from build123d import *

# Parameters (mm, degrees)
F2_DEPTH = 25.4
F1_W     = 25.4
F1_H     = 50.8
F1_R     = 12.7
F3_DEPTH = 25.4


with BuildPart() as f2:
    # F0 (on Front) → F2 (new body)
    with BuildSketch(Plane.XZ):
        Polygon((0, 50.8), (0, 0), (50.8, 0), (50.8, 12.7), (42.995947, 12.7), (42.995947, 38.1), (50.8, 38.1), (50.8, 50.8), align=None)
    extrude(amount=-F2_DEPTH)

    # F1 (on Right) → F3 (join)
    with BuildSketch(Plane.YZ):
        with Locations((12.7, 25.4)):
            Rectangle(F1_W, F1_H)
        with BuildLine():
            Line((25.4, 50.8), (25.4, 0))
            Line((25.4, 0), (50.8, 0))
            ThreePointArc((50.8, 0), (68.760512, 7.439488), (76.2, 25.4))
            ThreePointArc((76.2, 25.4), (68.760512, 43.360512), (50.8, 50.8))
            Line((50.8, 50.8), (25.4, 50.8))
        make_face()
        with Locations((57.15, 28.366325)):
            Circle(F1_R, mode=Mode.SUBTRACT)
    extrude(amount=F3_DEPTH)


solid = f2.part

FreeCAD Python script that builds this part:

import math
import FreeCAD as App
import Part
import Sketcher
from FreeCAD import Vector
Q = App.Units.Quantity


def add_polygon(sketch, points):
    """Adds a closed chain of lines whose ends are joined by coincident constraints."""
    first, n = sketch.GeometryCount, len(points)
    for a, b in zip(points, points[1:] + points[:1]):
        sketch.addGeometry(Part.LineSegment(App.Vector(*a, 0), App.Vector(*b, 0)), False)
    for i in range(n):
        sketch.addConstraint(Sketcher.Constraint("Coincident", first + i, 2, first + (i + 1) % n, 1))

doc = App.newDocument("Part")
body = doc.addObject("PartDesign::Body", "Body")

# Sketch on XZ plane
sketch1 = body.newObject("Sketcher::SketchObject", "Sketch")
sketch1.AttachmentSupport = (doc.getObject("XZ_Plane"), [""])
sketch1.MapMode = "FlatFace"
add_polygon(sketch1, [(0, 50.8), (0, 0), (50.8, 0), (50.8, 12.7), (42.995947, 12.7), (42.995947, 38.1), (50.8, 38.1), (50.8, 50.8)])  # lines 0-7
sketch1.addConstraint([
    Sketcher.Constraint("Vertical", 0),
    Sketcher.Constraint("Horizontal", 1),
    Sketcher.Constraint("Vertical", 2),
    Sketcher.Constraint("Horizontal", 3),
    Sketcher.Constraint("Vertical", 4),
    Sketcher.Constraint("Horizontal", 5),
    Sketcher.Constraint("Vertical", 6),
    Sketcher.Constraint("Horizontal", 7),
    Sketcher.Constraint("Coincident", 0, 2, -1, 1),
    Sketcher.Constraint("Vertical", 2, 2, 5, 2),
    Sketcher.Constraint("Equal", 7, 0),
    Sketcher.Constraint("Equal", 2, 6),
    Sketcher.Constraint("DistanceX", 1, 1, 1, 2, Q("2 in")),
    Sketcher.Constraint("DistanceY", 4, 1, 4, 2, Q("1 in")),
    Sketcher.Constraint("DistanceX", 3, 2, 3, 1, Q("7.804053 mm")),
])
pad1 = body.newObject("PartDesign::Pad", "Pad")
pad1.Profile = sketch1
pad1.Length = Q("1 in")
pad1.Reversed = True

# Sketch on YZ plane
sketch2 = body.newObject("Sketcher::SketchObject", "Sketch001")
sketch2.AttachmentSupport = (doc.getObject("YZ_Plane"), [""])
sketch2.MapMode = "FlatFace"
sketch2.addGeometry([
    Part.LineSegment(Vector(0, 50.8, 0), Vector(0, 0, 0)),  # 0
    Part.LineSegment(Vector(0, 0, 0), Vector(50.8, 0, 0)),  # 1
    Part.ArcOfCircle(Part.Circle(Vector(50.799999, 25.400001, 0), Vector(0, 0, 1), 25.400001), math.radians(-89.999998), math.radians(-0.000002)),  # 2
    Part.ArcOfCircle(Part.Circle(Vector(50.799999, 25.399999, 0), Vector(0, 0, 1), 25.400001), math.radians(0.000002), math.radians(89.999998)),  # 3
    Part.LineSegment(Vector(50.8, 50.8, 0), Vector(0, 50.8, 0)),  # 4
    Part.Circle(Vector(57.15, 28.366325, 0), Vector(0, 0, 1), 12.7),  # 5
], False)
sketch2.addConstraint([
    Sketcher.Constraint("Coincident", 0, 2, 1, 1),
    Sketcher.Constraint("Tangent", 1, 2, 2, 1),
    Sketcher.Constraint("Tangent", 2, 2, 3, 1),
    Sketcher.Constraint("Tangent", 3, 2, 4, 1),
    Sketcher.Constraint("Coincident", 4, 2, 0, 1),
    Sketcher.Constraint("Vertical", 0),
    Sketcher.Constraint("Horizontal", 1),
    Sketcher.Constraint("Horizontal", 4),
    Sketcher.Constraint("Coincident", 0, 2, -1, 1),
    Sketcher.Constraint("Equal", 2, 3),
    Sketcher.Constraint("Horizontal", 3, 3, 2, 2),
    Sketcher.Constraint("Equal", 4, 0),
    Sketcher.Constraint("Diameter", 5, Q("1 in")),
    Sketcher.Constraint("Radius", 2, Q("1 in")),
    Sketcher.Constraint("DistanceX", -1, 1, 5, 3, Q("2.25 in")),
    Sketcher.Constraint("DistanceY", -1, 1, 5, 3, Q("28.366325 mm")),
])
pad2 = body.newObject("PartDesign::Pad", "Pad001")
pad2.Profile = sketch2
pad2.Length = Q("1 in")

doc.recompute()
